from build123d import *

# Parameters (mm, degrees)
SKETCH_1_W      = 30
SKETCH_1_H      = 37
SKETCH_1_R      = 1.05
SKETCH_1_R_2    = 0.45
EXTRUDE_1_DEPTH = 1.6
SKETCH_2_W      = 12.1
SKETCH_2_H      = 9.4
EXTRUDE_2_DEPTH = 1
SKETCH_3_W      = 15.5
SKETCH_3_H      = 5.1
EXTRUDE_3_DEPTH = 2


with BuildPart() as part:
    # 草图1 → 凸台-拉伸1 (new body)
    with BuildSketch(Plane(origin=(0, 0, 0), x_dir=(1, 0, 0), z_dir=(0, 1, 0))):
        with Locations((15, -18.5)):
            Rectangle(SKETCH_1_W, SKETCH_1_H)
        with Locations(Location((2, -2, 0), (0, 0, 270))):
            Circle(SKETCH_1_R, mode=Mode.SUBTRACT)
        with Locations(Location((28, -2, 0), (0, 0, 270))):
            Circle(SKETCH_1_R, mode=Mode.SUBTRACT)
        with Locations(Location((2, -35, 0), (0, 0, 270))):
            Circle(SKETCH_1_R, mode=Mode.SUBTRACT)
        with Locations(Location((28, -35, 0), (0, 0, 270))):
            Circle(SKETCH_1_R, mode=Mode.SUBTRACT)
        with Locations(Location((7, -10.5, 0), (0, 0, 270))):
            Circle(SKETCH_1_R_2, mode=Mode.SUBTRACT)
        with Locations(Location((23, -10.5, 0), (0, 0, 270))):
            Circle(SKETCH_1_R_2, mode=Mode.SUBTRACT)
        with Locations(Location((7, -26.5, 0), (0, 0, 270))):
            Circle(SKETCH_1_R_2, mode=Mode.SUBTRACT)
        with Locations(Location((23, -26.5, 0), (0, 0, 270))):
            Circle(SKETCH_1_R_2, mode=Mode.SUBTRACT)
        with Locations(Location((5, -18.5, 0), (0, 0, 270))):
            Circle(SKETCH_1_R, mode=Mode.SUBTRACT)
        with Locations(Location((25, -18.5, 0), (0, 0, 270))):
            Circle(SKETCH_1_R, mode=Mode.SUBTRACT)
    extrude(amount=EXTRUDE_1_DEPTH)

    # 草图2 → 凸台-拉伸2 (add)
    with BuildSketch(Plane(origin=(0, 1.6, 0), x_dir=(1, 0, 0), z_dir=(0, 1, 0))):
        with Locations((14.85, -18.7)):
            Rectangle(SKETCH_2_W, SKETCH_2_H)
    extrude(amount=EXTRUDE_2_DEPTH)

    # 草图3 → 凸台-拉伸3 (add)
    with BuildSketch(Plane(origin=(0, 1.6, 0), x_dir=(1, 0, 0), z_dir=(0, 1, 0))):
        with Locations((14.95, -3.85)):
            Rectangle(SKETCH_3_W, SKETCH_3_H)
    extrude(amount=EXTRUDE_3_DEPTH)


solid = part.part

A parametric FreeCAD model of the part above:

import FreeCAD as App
import Part
import Sketcher

V = App.Vector
Q = App.Units.Quantity


def add_polygon(sketch, points):
    """Adds a closed chain of lines whose ends are joined by coincident constraints."""
    first, n = sketch.GeometryCount, len(points)
    for a, b in zip(points, points[1:] + points[:1]):
        sketch.addGeometry(Part.LineSegment(App.Vector(*a, 0), App.Vector(*b, 0)), False)
    for i in range(n):
        sketch.addConstraint(Sketcher.Constraint("Coincident", first + i, 2, first + (i + 1) % n, 1))

doc = App.newDocument("Part")
body = doc.addObject("PartDesign::Body", "Body")

# Sketch on XZ plane
sketch1 = body.newObject("Sketcher::SketchObject", "Sketch")
sketch1.AttachmentSupport = (doc.getObject("XZ_Plane"), [""])
sketch1.MapMode = "FlatFace"
add_polygon(sketch1, [(0, 0), (0, 37), (30, 37), (30, 0)])  # lines 0-3
sketch1.addGeometry(Part.Circle(V(2, 35, 0), V(0, 0, 1), 1.05), False)  # 4
sketch1.addGeometry(Part.Circle(V(7, 26.5, 0), V(0, 0, 1), 0.45), False)  # 5
sketch1.addGeometry(Part.Circle(V(28, 35, 0), V(0, 0, 1), 1.05), False)  # 6
sketch1.addGeometry(Part.Circle(V(23, 26.5, 0), V(0, 0, 1), 0.45), False)  # 7
sketch1.addGeometry(Part.Circle(V(5, 18.5, 0), V(0, 0, 1), 1.05), False)  # 8
sketch1.addGeometry(Part.Circle(V(7, 10.5, 0), V(0, 0, 1), 0.45), False)  # 9
sketch1.addGeometry(Part.Circle(V(2, 2, 0), V(0, 0, 1), 1.05), False)  # 10
sketch1.addGeometry(Part.Circle(V(25, 18.5, 0), V(0, 0, 1), 1.05), False)  # 11
sketch1.addGeometry(Part.Circle(V(23, 10.5, 0), V(0, 0, 1), 0.45), False)  # 12
sketch1.addGeometry(Part.Circle(V(28, 2, 0), V(0, 0, 1), 1.05), False)  # 13
sketch1.addConstraint([
    Sketcher.Constraint("Vertical", 0),
    Sketcher.Constraint("Horizontal", 1),
    Sketcher.Constraint("Vertical", 2),
    Sketcher.Constraint("Horizontal", 3),
    Sketcher.Constraint("Coincident", 3, 2, -1, 1),
    Sketcher.Constraint("Equal", 4, 6),
    Sketcher.Constraint("Equal", 5, 7),
    Sketcher.Constraint("Equal", 6, 8),
    Sketcher.Constraint("Equal", 7, 9),
    Sketcher.Constraint("Equal", 8, 10),
    Sketcher.Constraint("Equal", 10, 11),
    Sketcher.Constraint("Equal", 9, 12),
    Sketcher.Constraint("Equal", 11, 13),
    Sketcher.Constraint("Horizontal", 4, 3, 6, 3),
    Sketcher.Constraint("Horizontal", 5, 3, 7, 3),
    Sketcher.Constraint("Horizontal", 8, 3, 11, 3),
    Sketcher.Constraint("Horizontal", 9, 3, 12, 3),
    Sketcher.Constraint("Horizontal", 10, 3, 13, 3),
    Sketcher.Constraint("Vertical", 5, 3, 9, 3),
    Sketcher.Constraint("Vertical", 4, 3, 10, 3),
    Sketcher.Constraint("Vertical", 7, 3, 12, 3),
    Sketcher.Constraint("Vertical", 6, 3, 13, 3),
    Sketcher.Constraint("Diameter", 4, Q("2.1 mm")),
    Sketcher.Constraint("Diameter", 5, Q("0.9 mm")),
    Sketcher.Constraint("DistanceX", 1, 1, 1, 2, Q("30 mm")),
    Sketcher.Constraint("DistanceY", 0, 1, 0, 2, Q("37 mm")),
    Sketcher.Constraint("DistanceX", -1, 1, 4, 3, Q("2 mm")),
    Sketcher.Constraint("DistanceY", -1, 1, 4, 3, Q("35 mm")),
    Sketcher.Constraint("DistanceX", -1, 1, 5, 3, Q("7 mm")),
    Sketcher.Constraint("DistanceX", -1, 1, 6, 3, Q("28 mm")),
    Sketcher.Constraint("DistanceX", -1, 1, 7, 3, Q("23 mm")),
    Sketcher.Constraint("DistanceX", -1, 1, 8, 3, Q("5 mm")),
    Sketcher.Constraint("DistanceY", -1, 1, 10, 3, Q("2 mm")),
    Sketcher.Constraint("DistanceX", -1, 1, 11, 3, Q("25 mm")),
    Sketcher.Constraint("DistanceY", 8, 3, 5, 3, Q("8 mm")),
    Sketcher.Constraint("DistanceY", 9, 3, 8, 3, Q("8 mm")),
    Sketcher.Constraint("DistanceY", -1, 1, 5, 3, Q("26.5 mm")),
])
pad1 = body.newObject("PartDesign::Pad", "Pad")
pad1.Profile = sketch1
pad1.Length = 1.6
pad1.Reversed = True

# Sketch on XZ plane
sketch2 = body.newObject("Sketcher::SketchObject", "Sketch001")
sketch2.AttachmentSupport = (doc.getObject("XZ_Plane"), [""])
sketch2.MapMode = "FlatFace"
sketch2.AttachmentOffset = App.Placement(V(0, 0, -1.6), App.Rotation())
add_polygon(sketch2, [(9, 14), (9, 23), (21, 23), (21, 14)])  # lines 0-3
sketch2.addConstraint([
    Sketcher.Constraint("Vertical", 0),
    Sketcher.Constraint("Horizontal", 1),
    Sketcher.Constraint("Vertical", 2),
    Sketcher.Constraint("Horizontal", 3),
    Sketcher.Constraint("DistanceX", 1, 1, 1, 2, Q("12.1 mm")),
    Sketcher.Constraint("DistanceY", 0, 1, 0, 2, Q("9.4 mm")),
    Sketcher.Constraint("DistanceY", -1, 1, 2, 2, Q("14 mm")),
    Sketcher.Constraint("DistanceX", -1, 1, 0, 2, Q("8.8 mm")),
])
pad2 = body.newObject("PartDesign::Pad", "Pad001")
pad2.Profile = sketch2
pad2.Length = 1
pad2.Reversed = True

# Sketch on XZ plane
sketch3 = body.newObject("Sketcher::SketchObject", "Sketch002")
sketch3.AttachmentSupport = (doc.getObject("XZ_Plane"), [""])
sketch3.MapMode = "FlatFace"
sketch3.AttachmentOffset = App.Placement(V(0, 0, -1.6), App.Rotation())
add_polygon(sketch3, [(7, 1), (7, 6), (23, 6), (23, 1)])  # lines 0-3
sketch3.addConstraint([
    Sketcher.Constraint("Vertical", 0),
    Sketcher.Constraint("Horizontal", 1),
    Sketcher.Constraint("Vertical", 2),
    Sketcher.Constraint("Horizontal", 3),
    Sketcher.Constraint("DistanceX", 1, 1, 1, 2, Q("15.5 mm")),
    Sketcher.Constraint("DistanceY", 0, 1, 0, 2, Q("5.1 mm")),
    Sketcher.Constraint("DistanceX", -1, 1, 0, 2, Q("7.2 mm")),
    Sketcher.Constraint("DistanceY", -1, 1, 0, 2, Q("6.4 mm")),
])
pad3 = body.newObject("PartDesign::Pad", "Pad002")
pad3.Profile = sketch3
pad3.Length = 2
pad3.Reversed = True

doc.recompute()
